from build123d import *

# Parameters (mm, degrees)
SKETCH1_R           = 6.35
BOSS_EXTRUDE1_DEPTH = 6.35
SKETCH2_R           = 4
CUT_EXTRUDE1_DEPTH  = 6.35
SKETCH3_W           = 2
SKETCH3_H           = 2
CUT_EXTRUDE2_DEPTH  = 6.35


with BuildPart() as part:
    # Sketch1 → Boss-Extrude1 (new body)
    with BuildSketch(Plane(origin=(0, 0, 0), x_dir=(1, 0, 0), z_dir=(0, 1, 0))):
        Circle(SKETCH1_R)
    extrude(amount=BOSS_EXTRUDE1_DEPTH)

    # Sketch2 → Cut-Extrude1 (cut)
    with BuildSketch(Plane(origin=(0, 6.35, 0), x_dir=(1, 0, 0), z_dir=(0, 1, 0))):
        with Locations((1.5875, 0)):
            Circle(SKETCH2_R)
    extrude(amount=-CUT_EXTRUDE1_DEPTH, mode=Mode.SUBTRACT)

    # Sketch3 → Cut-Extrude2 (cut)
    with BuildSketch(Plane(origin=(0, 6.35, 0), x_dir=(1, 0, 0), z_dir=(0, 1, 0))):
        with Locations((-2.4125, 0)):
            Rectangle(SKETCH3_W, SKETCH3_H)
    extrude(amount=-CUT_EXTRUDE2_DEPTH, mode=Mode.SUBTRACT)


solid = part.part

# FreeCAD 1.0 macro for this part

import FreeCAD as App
import Part
import Sketcher
from FreeCAD import Vector


def add_polygon(sketch, points):
    """Adds a closed chain of lines whose ends are joined by coincident constraints."""
    first, n = sketch.GeometryCount, len(points)
    for a, b in zip(points, points[1:] + points[:1]):
        sketch.addGeometry(Part.LineSegment(App.Vector(*a, 0), App.Vector(*b, 0)), False)
    for i in range(n):
        sketch.addConstraint(Sketcher.Constraint("Coincident", first + i, 2, first + (i + 1) % n, 1))

doc = App.newDocument("Part")
body = doc.addObject("PartDesign::Body", "Body")

# Sketch on XZ plane
sketch1 = body.newObject("Sketcher::SketchObject", "Sketch")
sketch1.AttachmentSupport = (doc.getObject("XZ_Plane"), [""])
sketch1.MapMode = "FlatFace"
sketch1.addGeometry(Part.Circle(Vector(0, 0, 0), Vector(0, 0, 1), 6), False)
sketch1.addConstraint(Sketcher.Constraint("Coincident", 0, 3, -1, 1))
sketch1.addConstraint(Sketcher.Constraint("Diameter", 0, 12.7))
pad1 = body.newObject("PartDesign::Pad", "Pad")
pad1.Profile = sketch1
pad1.Length = 6.35
pad1.Reversed = True

# Sketch on XZ plane
sketch2 = body.newObject("Sketcher::SketchObject", "Sketch001")
sketch2.AttachmentSupport = (doc.getObject("XZ_Plane"), [""])
sketch2.MapMode = "FlatFace"
sketch2.AttachmentOffset = App.Placement(Vector(0, 0, -6.35), App.Rotation())
sketch2.addGeometry(Part.Circle(Vector(1.6, 0, 0), Vector(0, 0, 1), 4), False)
sketch2.addConstraint(Sketcher.Constraint("PointOnObject", 0, 3, -1))
sketch2.addConstraint(Sketcher.Constraint("Diameter", 0, 8.0))
sketch2.addConstraint(Sketcher.Constraint("DistanceX", -1, 1, 0, 3, 1.5875))
pocket1 = body.newObject("PartDesign::Pocket", "Pocket")
pocket1.Profile = sketch2
pocket1.Length = 6.35
pocket1.Reversed = True

# Sketch on XZ plane
sketch3 = body.newObject("Sketcher::SketchObject", "Sketch002")
sketch3.AttachmentSupport = (doc.getObject("XZ_Plane"), [""])
sketch3.MapMode = "FlatFace"
sketch3.AttachmentOffset = App.Placement(Vector(0, 0, -6.35), App.Rotation())
add_polygon(sketch3, [(-3.4, -1), (-3.4, 1), (-1.4, 1), (-1.4, -1)])  # lines 0-3
sketch3.addConstraint(Sketcher.Constraint("Vertical", 0))
sketch3.addConstraint(Sketcher.Constraint("Horizontal", 1))
sketch3.addConstraint(Sketcher.Constraint("Vertical", 2))
sketch3.addConstraint(Sketcher.Constraint("Horizontal", 3))
sketch3.addConstraint(Sketcher.Constraint("Equal", 3, 0))
sketch3.addConstraint(Sketcher.Constraint("DistanceX", 1, 1, 1, 2, 2.0))
sketch3.addConstraint(Sketcher.Constraint("DistanceY", -1, 1, 0, 2, 1.0))
sketch3.addConstraint(Sketcher.Constraint("DistanceX", 0, 2, -1, 1, 3.4125))
pocket2 = body.newObject("PartDesign::Pocket", "Pocket001")
pocket2.Profile = sketch3
pocket2.Length = 6.35
pocket2.Reversed = True

doc.recompute()
